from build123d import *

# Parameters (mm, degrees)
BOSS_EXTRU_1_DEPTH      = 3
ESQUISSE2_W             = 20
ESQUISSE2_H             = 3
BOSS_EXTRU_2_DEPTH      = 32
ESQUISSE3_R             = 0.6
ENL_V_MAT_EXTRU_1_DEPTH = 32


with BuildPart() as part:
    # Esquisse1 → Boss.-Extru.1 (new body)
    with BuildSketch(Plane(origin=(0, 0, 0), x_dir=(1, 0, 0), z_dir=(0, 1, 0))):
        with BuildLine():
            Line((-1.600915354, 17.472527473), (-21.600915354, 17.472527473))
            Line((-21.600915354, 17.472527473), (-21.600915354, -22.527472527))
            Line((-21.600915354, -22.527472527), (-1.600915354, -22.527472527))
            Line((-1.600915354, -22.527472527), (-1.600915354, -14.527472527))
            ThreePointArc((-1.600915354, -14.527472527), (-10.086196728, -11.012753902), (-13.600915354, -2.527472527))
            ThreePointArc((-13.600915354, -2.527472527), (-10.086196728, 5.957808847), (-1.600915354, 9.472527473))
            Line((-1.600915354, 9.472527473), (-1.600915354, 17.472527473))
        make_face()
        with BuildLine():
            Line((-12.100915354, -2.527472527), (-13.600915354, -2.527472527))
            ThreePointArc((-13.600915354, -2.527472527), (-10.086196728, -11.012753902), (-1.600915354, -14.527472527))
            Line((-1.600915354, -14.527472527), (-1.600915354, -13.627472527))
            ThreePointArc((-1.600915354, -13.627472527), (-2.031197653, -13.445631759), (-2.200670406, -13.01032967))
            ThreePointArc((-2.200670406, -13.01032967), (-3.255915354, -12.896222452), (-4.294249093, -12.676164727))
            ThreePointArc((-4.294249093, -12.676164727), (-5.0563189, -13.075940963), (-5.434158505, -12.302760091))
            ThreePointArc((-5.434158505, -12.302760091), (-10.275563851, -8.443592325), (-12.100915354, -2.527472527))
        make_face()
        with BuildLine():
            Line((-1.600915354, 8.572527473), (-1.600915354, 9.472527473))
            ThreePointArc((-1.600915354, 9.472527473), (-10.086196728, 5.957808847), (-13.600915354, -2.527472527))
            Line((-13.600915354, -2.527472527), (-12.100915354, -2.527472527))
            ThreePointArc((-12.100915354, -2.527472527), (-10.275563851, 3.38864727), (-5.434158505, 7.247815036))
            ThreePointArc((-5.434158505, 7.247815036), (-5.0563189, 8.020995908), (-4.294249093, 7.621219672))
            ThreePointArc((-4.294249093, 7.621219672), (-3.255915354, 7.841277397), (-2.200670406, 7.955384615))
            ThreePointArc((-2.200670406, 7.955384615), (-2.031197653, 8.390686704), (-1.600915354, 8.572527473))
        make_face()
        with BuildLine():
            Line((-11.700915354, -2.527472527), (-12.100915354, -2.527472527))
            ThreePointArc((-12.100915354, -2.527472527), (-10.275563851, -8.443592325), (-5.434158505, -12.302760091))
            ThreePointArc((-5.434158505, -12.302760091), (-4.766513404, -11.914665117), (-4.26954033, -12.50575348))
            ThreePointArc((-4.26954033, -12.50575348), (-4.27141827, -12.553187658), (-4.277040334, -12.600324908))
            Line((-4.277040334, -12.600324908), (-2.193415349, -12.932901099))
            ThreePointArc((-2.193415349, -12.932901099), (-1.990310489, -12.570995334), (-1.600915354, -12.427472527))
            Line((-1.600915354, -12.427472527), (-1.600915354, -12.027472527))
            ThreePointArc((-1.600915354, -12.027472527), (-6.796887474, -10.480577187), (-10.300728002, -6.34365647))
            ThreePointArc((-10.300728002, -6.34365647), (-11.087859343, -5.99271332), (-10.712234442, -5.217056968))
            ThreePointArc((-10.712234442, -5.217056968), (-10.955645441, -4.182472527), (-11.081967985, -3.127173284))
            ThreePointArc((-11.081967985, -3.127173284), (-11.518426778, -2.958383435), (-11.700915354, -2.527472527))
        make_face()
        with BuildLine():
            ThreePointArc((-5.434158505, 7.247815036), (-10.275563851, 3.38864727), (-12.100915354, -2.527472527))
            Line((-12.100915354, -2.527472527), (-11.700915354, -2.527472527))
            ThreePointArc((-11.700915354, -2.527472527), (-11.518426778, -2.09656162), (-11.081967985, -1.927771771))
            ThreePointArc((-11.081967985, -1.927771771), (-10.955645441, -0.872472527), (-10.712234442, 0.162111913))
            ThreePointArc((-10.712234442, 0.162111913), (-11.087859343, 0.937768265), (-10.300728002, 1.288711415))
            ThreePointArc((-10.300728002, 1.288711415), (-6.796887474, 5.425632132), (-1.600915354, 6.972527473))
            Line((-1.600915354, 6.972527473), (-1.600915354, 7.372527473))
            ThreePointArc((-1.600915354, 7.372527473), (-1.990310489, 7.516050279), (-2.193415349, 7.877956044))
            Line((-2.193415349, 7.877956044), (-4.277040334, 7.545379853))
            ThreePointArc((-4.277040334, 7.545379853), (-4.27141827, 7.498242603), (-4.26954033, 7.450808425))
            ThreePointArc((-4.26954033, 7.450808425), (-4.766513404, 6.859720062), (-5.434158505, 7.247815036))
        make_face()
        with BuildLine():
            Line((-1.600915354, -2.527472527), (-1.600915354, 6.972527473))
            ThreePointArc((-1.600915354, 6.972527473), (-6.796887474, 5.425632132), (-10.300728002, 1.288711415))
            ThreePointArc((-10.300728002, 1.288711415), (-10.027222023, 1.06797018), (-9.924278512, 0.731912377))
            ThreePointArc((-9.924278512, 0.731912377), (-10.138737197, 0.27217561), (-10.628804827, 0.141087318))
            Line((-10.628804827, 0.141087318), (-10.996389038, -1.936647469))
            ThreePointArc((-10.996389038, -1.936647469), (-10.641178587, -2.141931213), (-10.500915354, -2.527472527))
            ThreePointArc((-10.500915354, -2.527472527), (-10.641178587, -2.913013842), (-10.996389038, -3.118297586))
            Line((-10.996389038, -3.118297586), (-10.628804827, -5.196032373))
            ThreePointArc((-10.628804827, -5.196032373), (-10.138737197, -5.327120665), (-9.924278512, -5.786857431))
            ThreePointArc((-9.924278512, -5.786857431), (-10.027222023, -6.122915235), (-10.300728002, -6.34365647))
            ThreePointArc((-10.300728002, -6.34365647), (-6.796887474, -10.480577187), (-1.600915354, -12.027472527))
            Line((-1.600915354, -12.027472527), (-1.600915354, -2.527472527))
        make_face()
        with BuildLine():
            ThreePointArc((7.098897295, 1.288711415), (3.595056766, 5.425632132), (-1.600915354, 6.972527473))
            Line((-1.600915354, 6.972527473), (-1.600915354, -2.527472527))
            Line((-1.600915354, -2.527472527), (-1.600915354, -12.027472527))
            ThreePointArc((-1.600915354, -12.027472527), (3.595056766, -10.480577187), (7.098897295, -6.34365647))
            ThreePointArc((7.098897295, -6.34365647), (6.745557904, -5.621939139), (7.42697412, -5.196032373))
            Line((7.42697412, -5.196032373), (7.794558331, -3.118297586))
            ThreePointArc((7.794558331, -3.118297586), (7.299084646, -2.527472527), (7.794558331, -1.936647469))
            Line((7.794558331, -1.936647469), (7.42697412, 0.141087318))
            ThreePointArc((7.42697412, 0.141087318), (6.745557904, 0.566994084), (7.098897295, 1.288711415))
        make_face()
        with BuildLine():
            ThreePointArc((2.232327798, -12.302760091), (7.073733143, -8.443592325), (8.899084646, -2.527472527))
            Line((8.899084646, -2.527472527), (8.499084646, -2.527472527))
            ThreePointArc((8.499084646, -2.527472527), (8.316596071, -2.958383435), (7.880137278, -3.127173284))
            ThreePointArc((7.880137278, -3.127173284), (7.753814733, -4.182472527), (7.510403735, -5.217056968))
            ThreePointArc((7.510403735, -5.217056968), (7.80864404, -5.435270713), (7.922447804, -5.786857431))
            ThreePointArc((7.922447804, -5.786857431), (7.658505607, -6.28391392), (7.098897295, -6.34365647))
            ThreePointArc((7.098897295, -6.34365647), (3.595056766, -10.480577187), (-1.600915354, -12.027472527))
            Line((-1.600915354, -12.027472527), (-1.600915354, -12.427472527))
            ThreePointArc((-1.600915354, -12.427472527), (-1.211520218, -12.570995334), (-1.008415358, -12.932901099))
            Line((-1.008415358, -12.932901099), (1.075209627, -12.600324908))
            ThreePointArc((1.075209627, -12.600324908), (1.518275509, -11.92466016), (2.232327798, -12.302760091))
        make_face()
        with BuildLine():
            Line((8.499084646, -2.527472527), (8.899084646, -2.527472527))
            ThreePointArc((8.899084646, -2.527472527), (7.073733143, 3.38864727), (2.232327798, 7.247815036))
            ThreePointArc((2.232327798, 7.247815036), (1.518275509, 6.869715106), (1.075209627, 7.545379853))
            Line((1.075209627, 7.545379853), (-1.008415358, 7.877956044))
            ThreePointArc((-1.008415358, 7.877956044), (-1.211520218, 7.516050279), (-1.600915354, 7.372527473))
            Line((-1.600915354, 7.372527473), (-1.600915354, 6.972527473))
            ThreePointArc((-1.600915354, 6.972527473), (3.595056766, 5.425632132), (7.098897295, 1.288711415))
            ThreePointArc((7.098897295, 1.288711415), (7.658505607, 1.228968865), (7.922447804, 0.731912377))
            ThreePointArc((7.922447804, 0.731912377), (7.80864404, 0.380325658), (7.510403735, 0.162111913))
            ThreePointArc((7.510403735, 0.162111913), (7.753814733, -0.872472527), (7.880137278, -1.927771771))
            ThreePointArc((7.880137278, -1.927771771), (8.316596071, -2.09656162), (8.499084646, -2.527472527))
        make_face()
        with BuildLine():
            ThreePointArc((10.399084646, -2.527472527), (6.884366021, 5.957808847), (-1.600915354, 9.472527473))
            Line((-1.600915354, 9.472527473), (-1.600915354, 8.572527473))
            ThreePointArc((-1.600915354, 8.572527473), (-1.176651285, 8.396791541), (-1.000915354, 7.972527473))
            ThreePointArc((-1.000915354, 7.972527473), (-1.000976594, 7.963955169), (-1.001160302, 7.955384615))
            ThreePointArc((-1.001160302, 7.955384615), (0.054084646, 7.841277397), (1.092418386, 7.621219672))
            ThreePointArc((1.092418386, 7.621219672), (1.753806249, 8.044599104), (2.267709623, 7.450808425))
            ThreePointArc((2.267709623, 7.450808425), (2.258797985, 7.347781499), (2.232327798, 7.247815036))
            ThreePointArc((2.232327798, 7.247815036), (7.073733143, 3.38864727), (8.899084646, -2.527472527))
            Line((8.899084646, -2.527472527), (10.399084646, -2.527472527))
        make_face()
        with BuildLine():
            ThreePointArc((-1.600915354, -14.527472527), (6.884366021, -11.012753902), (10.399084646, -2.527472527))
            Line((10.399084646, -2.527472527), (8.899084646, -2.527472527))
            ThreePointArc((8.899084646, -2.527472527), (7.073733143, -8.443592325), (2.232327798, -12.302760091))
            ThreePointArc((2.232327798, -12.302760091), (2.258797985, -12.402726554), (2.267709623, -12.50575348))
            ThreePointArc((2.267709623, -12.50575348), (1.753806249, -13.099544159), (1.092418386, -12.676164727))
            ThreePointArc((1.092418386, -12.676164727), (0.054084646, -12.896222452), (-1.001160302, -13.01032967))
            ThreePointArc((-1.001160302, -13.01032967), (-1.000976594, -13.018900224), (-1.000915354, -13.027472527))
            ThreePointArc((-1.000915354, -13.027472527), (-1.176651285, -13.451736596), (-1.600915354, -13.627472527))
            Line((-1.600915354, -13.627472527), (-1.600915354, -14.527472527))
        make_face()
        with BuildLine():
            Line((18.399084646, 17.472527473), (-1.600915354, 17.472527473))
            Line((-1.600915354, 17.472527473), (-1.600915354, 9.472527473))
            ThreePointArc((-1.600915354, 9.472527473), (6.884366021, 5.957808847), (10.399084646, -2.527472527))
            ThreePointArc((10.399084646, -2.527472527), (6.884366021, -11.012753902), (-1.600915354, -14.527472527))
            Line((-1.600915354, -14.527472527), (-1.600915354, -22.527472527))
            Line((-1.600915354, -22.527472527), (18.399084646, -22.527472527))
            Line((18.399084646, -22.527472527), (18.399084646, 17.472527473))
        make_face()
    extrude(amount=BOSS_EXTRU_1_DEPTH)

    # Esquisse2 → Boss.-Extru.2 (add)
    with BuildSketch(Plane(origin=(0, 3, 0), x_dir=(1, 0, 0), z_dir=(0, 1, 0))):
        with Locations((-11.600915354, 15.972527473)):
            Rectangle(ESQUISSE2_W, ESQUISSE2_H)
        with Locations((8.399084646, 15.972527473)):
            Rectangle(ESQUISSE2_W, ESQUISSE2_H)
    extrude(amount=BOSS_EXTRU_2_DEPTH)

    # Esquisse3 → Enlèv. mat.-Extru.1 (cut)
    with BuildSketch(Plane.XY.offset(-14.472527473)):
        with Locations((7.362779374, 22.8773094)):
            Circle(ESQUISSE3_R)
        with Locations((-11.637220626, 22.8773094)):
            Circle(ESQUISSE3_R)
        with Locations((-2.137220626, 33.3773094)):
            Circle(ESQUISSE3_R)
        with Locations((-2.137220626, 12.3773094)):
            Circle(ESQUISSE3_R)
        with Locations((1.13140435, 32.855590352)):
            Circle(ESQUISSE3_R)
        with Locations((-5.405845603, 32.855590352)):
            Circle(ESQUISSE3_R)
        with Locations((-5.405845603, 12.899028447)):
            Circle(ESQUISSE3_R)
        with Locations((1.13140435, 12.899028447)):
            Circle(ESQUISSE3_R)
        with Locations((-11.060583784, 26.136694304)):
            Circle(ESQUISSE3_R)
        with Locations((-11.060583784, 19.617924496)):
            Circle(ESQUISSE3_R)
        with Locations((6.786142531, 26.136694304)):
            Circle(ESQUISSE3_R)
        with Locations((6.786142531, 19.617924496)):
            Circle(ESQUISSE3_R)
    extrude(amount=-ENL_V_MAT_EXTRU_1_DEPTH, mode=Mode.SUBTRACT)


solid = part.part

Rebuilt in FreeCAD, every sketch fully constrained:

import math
import FreeCAD as App
import Part
import Sketcher
from FreeCAD import Vector
Q = App.Units.Quantity

doc = App.newDocument("Part")
body = doc.addObject("PartDesign::Body", "Body")

# Sketch on XZ plane
sketch1 = body.newObject("Sketcher::SketchObject", "Sketch")
sketch1.AttachmentSupport = (doc.getObject("XZ_Plane"), [""])
sketch1.MapMode = "FlatFace"
sketch1.addGeometry(Part.LineSegment(Vector(-21.601, -17.473, 0), Vector(-21.601, 22.527, 0)), False)
sketch1.addGeometry(Part.LineSegment(Vector(-21.601, 22.527, 0), Vector(18.399, 22.527, 0)), False)
sketch1.addGeometry(Part.LineSegment(Vector(18.399, 22.527, 0), Vector(18.399, -17.473, 0)), False)
sketch1.addGeometry(Part.LineSegment(Vector(18.399, -17.473, 0), Vector(-21.601, -17.473, 0)), False)
sketch1.addGeometry(Part.ArcOfCircle(Part.Circle(Vector(-1.601, 13.027, 0), Vector(0, 0, 1), 0.6), math.radians(90), math.radians(182)), False)
sketch1.addGeometry(Part.ArcOfCircle(Part.Circle(Vector(-1.601, 2.527, 0), Vector(0, 0, 1), 10.5), math.radians(93.27), math.radians(104.86)), False)
sketch1.addGeometry(Part.ArcOfCircle(Part.Circle(Vector(-4.87, 12.506, 0), Vector(0, 0, 1), 0.6), math.radians(17), math.radians(200)), False)
sketch1.addGeometry(Part.ArcOfCircle(Part.Circle(Vector(-4.87, 12.506, 0), Vector(0, 0, 1), 0.6), math.radians(-160), math.radians(0)), False)
sketch1.addGeometry(Part.ArcOfCircle(Part.Circle(Vector(-4.87, 12.506, 0), Vector(0, 0, 1), 0.6), math.radians(0), math.radians(9.07)), False)
sketch1.addGeometry(Part.LineSegment(Vector(-4.277, 12.6, 0), Vector(-2.193, 12.933, 0)), False)
sketch1.addGeometry(Part.ArcOfCircle(Part.Circle(Vector(-1.601, 13.027, 0), Vector(0, 0, 1), 0.6), math.radians(-171), math.radians(-90)), False)
sketch1.addGeometry(Part.ArcOfCircle(Part.Circle(Vector(-1.601, 13.027, 0), Vector(0, 0, 1), 0.6), math.radians(-90), math.radians(-9)), False)
sketch1.addGeometry(Part.LineSegment(Vector(-1.008, 12.933, 0), Vector(1.075, 12.6, 0)), False)
sketch1.addGeometry(Part.ArcOfCircle(Part.Circle(Vector(1.668, 12.506, 0), Vector(0, 0, 1), 0.6), math.radians(171), math.radians(340)), False)
sketch1.addGeometry(Part.ArcOfCircle(Part.Circle(Vector(1.668, 12.506, 0), Vector(0, 0, 1), 0.6), math.radians(-19.77), math.radians(0)), False)
sketch1.addGeometry(Part.ArcOfCircle(Part.Circle(Vector(1.668, 12.506, 0), Vector(0, 0, 1), 0.6), math.radians(0), math.radians(163)), False)
sketch1.addGeometry(Part.ArcOfCircle(Part.Circle(Vector(-1.601, 2.527, 0), Vector(0, 0, 1), 10.5), math.radians(75.14), math.radians(86.73)), False)
sketch1.addGeometry(Part.ArcOfCircle(Part.Circle(Vector(-1.601, 13.027, 0), Vector(0, 0, 1), 0.6), math.radians(-1.64), math.radians(0)), False)
sketch1.addGeometry(Part.ArcOfCircle(Part.Circle(Vector(-1.601, 13.027, 0), Vector(0, 0, 1), 0.6), math.radians(0), math.radians(90)), False)
sketch1.addGeometry(Part.ArcOfCircle(Part.Circle(Vector(1.668, -7.451, 0), Vector(0, 0, 1), 0.6), math.radians(20), math.radians(189)), False)
sketch1.addGeometry(Part.LineSegment(Vector(1.075, -7.545, 0), Vector(-1.008, -7.878, 0)), False)
sketch1.addGeometry(Part.ArcOfCircle(Part.Circle(Vector(-1.601, -7.973, 0), Vector(0, 0, 1), 0.6), math.radians(9), math.radians(90)), False)
sketch1.addGeometry(Part.ArcOfCircle(Part.Circle(Vector(-1.601, -7.973, 0), Vector(0, 0, 1), 0.6), math.radians(90), math.radians(171)), False)
sketch1.addGeometry(Part.LineSegment(Vector(-2.193, -7.878, 0), Vector(-4.277, -7.545, 0)), False)
sketch1.addGeometry(Part.ArcOfCircle(Part.Circle(Vector(-4.87, -7.451, 0), Vector(0, 0, 1), 0.6), math.radians(-9.07), math.radians(0)), False)
sketch1.addGeometry(Part.ArcOfCircle(Part.Circle(Vector(-4.87, -7.451, 0), Vector(0, 0, 1), 0.6), math.radians(0), math.radians(160)), False)
sketch1.addGeometry(Part.ArcOfCircle(Part.Circle(Vector(-4.87, -7.451, 0), Vector(0, 0, 1), 0.6), math.radians(160), math.radians(343)), False)
sketch1.addGeometry(Part.ArcOfCircle(Part.Circle(Vector(-1.601, 2.527, 0), Vector(0, 0, 1), 10.5), math.radians(-104.86), math.radians(-93.27)), False)
sketch1.addGeometry(Part.ArcOfCircle(Part.Circle(Vector(-1.601, -7.973, 0), Vector(0, 0, 1), 0.6), math.radians(178), math.radians(270)), False)
sketch1.addGeometry(Part.ArcOfCircle(Part.Circle(Vector(-1.601, -7.973, 0), Vector(0, 0, 1), 0.6), math.radians(-90), math.radians(0)), False)
sketch1.addGeometry(Part.ArcOfCircle(Part.Circle(Vector(-1.601, -7.973, 0), Vector(0, 0, 1), 0.6), math.radians(0), math.radians(1.64)), False)
sketch1.addGeometry(Part.ArcOfCircle(Part.Circle(Vector(-1.601, 2.527, 0), Vector(0, 0, 1), 10.5), math.radians(-86.73), math.radians(-75.14)), False)
sketch1.addGeometry(Part.ArcOfCircle(Part.Circle(Vector(1.668, -7.451, 0), Vector(0, 0, 1), 0.6), math.radians(-163), math.radians(0)), False)
sketch1.addGeometry(Part.ArcOfCircle(Part.Circle(Vector(1.668, -7.451, 0), Vector(0, 0, 1), 0.6), math.radians(0), math.radians(19.77)), False)
sketch1.addGeometry(Part.ArcOfCircle(Part.Circle(Vector(7.899, 2.527, 0), Vector(0, 0, 1), 0.6), math.radians(0), math.radians(92)), False)
sketch1.addGeometry(Part.ArcOfCircle(Part.Circle(Vector(-1.601, 2.527, 0), Vector(0, 0, 1), 9.5), math.radians(3.62), math.radians(16.45)), False)
sketch1.addGeometry(Part.ArcOfCircle(Part.Circle(Vector(7.322, 5.787, 0), Vector(0, 0, 1), 0.6), math.radians(-72), math.radians(0)), False)
sketch1.addGeometry(Part.ArcOfCircle(Part.Circle(Vector(7.322, 5.787, 0), Vector(0, 0, 1), 0.6), math.radians(0), math.radians(112)), False)
sketch1.addGeometry(Part.ArcOfCircle(Part.Circle(Vector(7.322, 5.787, 0), Vector(0, 0, 1), 0.6), math.radians(112), math.radians(280)), False)
sketch1.addGeometry(Part.LineSegment(Vector(7.427, 5.196, 0), Vector(7.795, 3.118, 0)), False)
sketch1.addGeometry(Part.ArcOfCircle(Part.Circle(Vector(7.899, 2.527, 0), Vector(0, 0, 1), 0.6), math.radians(100), math.radians(260)), False)
sketch1.addGeometry(Part.LineSegment(Vector(7.795, 1.937, 0), Vector(7.427, -0.141, 0)), False)
sketch1.addGeometry(Part.ArcOfCircle(Part.Circle(Vector(7.322, -0.732, 0), Vector(0, 0, 1), 0.6), math.radians(80), math.radians(248)), False)
sketch1.addGeometry(Part.ArcOfCircle(Part.Circle(Vector(7.322, -0.732, 0), Vector(0, 0, 1), 0.6), math.radians(-112), math.radians(0)), False)
sketch1.addGeometry(Part.ArcOfCircle(Part.Circle(Vector(7.322, -0.732, 0), Vector(0, 0, 1), 0.6), math.radians(0), math.radians(72)), False)
sketch1.addGeometry(Part.ArcOfCircle(Part.Circle(Vector(-1.601, 2.527, 0), Vector(0, 0, 1), 9.5), math.radians(-16.45), math.radians(-3.62)), False)
sketch1.addGeometry(Part.ArcOfCircle(Part.Circle(Vector(7.899, 2.527, 0), Vector(0, 0, 1), 0.6), math.radians(-92), math.radians(0)), False)
sketch1.addGeometry(Part.ArcOfCircle(Part.Circle(Vector(-10.524, 5.787, 0), Vector(0, 0, 1), 0.6), math.radians(68), math.radians(252)), False)
sketch1.addGeometry(Part.ArcOfCircle(Part.Circle(Vector(-1.601, 2.527, 0), Vector(0, 0, 1), 9.5), math.radians(163.55), math.radians(176.38)), False)
sketch1.addGeometry(Part.ArcOfCircle(Part.Circle(Vector(-11.101, 2.527, 0), Vector(0, 0, 1), 0.6), math.radians(88), math.radians(180)), False)
sketch1.addGeometry(Part.ArcOfCircle(Part.Circle(Vector(-11.101, 2.527, 0), Vector(0, 0, 1), 0.6), math.radians(-180), math.radians(-88)), False)
sketch1.addGeometry(Part.ArcOfCircle(Part.Circle(Vector(-1.601, 2.527, 0), Vector(0, 0, 1), 9.5), math.radians(-176.38), math.radians(-163.55)), False)
sketch1.addGeometry(Part.ArcOfCircle(Part.Circle(Vector(-10.524, -0.732, 0), Vector(0, 0, 1), 0.6), math.radians(108), math.radians(292)), False)
sketch1.addGeometry(Part.ArcOfCircle(Part.Circle(Vector(-10.524, -0.732, 0), Vector(0, 0, 1), 0.6), math.radians(-68), math.radians(0)), False)
sketch1.addGeometry(Part.ArcOfCircle(Part.Circle(Vector(-10.524, -0.732, 0), Vector(0, 0, 1), 0.6), math.radians(0), math.radians(100)), False)
sketch1.addGeometry(Part.LineSegment(Vector(-10.629, -0.141, 0), Vector(-10.996, 1.937, 0)), False)
sketch1.addGeometry(Part.ArcOfCircle(Part.Circle(Vector(-11.101, 2.527, 0), Vector(0, 0, 1), 0.6), math.radians(-80), math.radians(0)), False)
sketch1.addGeometry(Part.ArcOfCircle(Part.Circle(Vector(-11.101, 2.527, 0), Vector(0, 0, 1), 0.6), math.radians(0), math.radians(80)), False)
sketch1.addGeometry(Part.LineSegment(Vector(-10.996, 3.118, 0), Vector(-10.629, 5.196, 0)), False)
sketch1.addGeometry(Part.ArcOfCircle(Part.Circle(Vector(-10.524, 5.787, 0), Vector(0, 0, 1), 0.6), math.radians(-100), math.radians(0)), False)
sketch1.addGeometry(Part.ArcOfCircle(Part.Circle(Vector(-10.524, 5.787, 0), Vector(0, 0, 1), 0.6), math.radians(0), math.radians(68)), False)
sketch1.addConstraint(Sketcher.Constraint("Coincident", 0, 2, 1, 1))
sketch1.addConstraint(Sketcher.Constraint("Coincident", 1, 2, 2, 1))
sketch1.addConstraint(Sketcher.Constraint("Coincident", 2, 2, 3, 1))
sketch1.addConstraint(Sketcher.Constraint("Coincident", 3, 2, 0, 1))
sketch1.addConstraint(Sketcher.Constraint("Coincident", 4, 2, 5, 1))
sketch1.addConstraint(Sketcher.Constraint("Coincident", 5, 2, 6, 1))
sketch1.addConstraint(Sketcher.Constraint("Tangent", 6, 2, 7, 1))
sketch1.addConstraint(Sketcher.Constraint("Tangent", 7, 2, 8, 1))
sketch1.addConstraint(Sketcher.Constraint("Coincident", 8, 2, 9, 1))
sketch1.addConstraint(Sketcher.Constraint("Coincident", 9, 2, 10, 1))
sketch1.addConstraint(Sketcher.Constraint("Tangent", 10, 2, 11, 1))
sketch1.addConstraint(Sketcher.Constraint("Coincident", 11, 2, 12, 1))
sketch1.addConstraint(Sketcher.Constraint("Coincident", 12, 2, 13, 1))
sketch1.addConstraint(Sketcher.Constraint("Tangent", 13, 2, 14, 1))
sketch1.addConstraint(Sketcher.Constraint("Tangent", 14, 2, 15, 1))
sketch1.addConstraint(Sketcher.Constraint("Coincident", 15, 2, 16, 1))
sketch1.addConstraint(Sketcher.Constraint("Coincident", 16, 2, 17, 1))
sketch1.addConstraint(Sketcher.Constraint("Tangent", 17, 2, 18, 1))
sketch1.addConstraint(Sketcher.Constraint("Tangent", 18, 2, 4, 1))
sketch1.addConstraint(Sketcher.Constraint("Coincident", 19, 2, 20, 1))
sketch1.addConstraint(Sketcher.Constraint("Coincident", 20, 2, 21, 1))
sketch1.addConstraint(Sketcher.Constraint("Tangent", 21, 2, 22, 1))
sketch1.addConstraint(Sketcher.Constraint("Coincident", 22, 2, 23, 1))
sketch1.addConstraint(Sketcher.Constraint("Coincident", 23, 2, 24, 1))
sketch1.addConstraint(Sketcher.Constraint("Tangent", 24, 2, 25, 1))
sketch1.addConstraint(Sketcher.Constraint("Tangent", 25, 2, 26, 1))
sketch1.addConstraint(Sketcher.Constraint("Coincident", 26, 2, 27, 1))
sketch1.addConstraint(Sketcher.Constraint("Coincident", 27, 2, 28, 1))
sketch1.addConstraint(Sketcher.Constraint("Tangent", 28, 2, 29, 1))
sketch1.addConstraint(Sketcher.Constraint("Tangent", 29, 2, 30, 1))
sketch1.addConstraint(Sketcher.Constraint("Coincident", 30, 2, 31, 1))
sketch1.addConstraint(Sketcher.Constraint("Coincident", 31, 2, 32, 1))
sketch1.addConstraint(Sketcher.Constraint("Tangent", 32, 2, 33, 1))
sketch1.addConstraint(Sketcher.Constraint("Tangent", 33, 2, 19, 1))
sketch1.addConstraint(Sketcher.Constraint("Coincident", 34, 2, 35, 1))
sketch1.addConstraint(Sketcher.Constraint("Coincident", 35, 2, 36, 1))
sketch1.addConstraint(Sketcher.Constraint("Tangent", 36, 2, 37, 1))
sketch1.addConstraint(Sketcher.Constraint("Tangent", 37, 2, 38, 1))
sketch1.addConstraint(Sketcher.Constraint("Coincident", 38, 2, 39, 1))
sketch1.addConstraint(Sketcher.Constraint("Coincident", 39, 2, 40, 1))
sketch1.addConstraint(Sketcher.Constraint("Coincident", 40, 2, 41, 1))
sketch1.addConstraint(Sketcher.Constraint("Coincident", 41, 2, 42, 1))
sketch1.addConstraint(Sketcher.Constraint("Tangent", 42, 2, 43, 1))
sketch1.addConstraint(Sketcher.Constraint("Tangent", 43, 2, 44, 1))
sketch1.addConstraint(Sketcher.Constraint("Coincident", 44, 2, 45, 1))
sketch1.addConstraint(Sketcher.Constraint("Coincident", 45, 2, 46, 1))
sketch1.addConstraint(Sketcher.Constraint("Tangent", 46, 2, 34, 1))
sketch1.addConstraint(Sketcher.Constraint("Coincident", 47, 2, 48, 1))
sketch1.addConstraint(Sketcher.Constraint("Coincident", 48, 2, 49, 1))
sketch1.addConstraint(Sketcher.Constraint("Tangent", 49, 2, 50, 1))
sketch1.addConstraint(Sketcher.Constraint("Coincident", 50, 2, 51, 1))
sketch1.addConstraint(Sketcher.Constraint("Coincident", 51, 2, 52, 1))
sketch1.addConstraint(Sketcher.Constraint("Tangent", 52, 2, 53, 1))
sketch1.addConstraint(Sketcher.Constraint("Tangent", 53, 2, 54, 1))
sketch1.addConstraint(Sketcher.Constraint("Coincident", 54, 2, 55, 1))
sketch1.addConstraint(Sketcher.Constraint("Coincident", 55, 2, 56, 1))
sketch1.addConstraint(Sketcher.Constraint("Tangent", 56, 2, 57, 1))
sketch1.addConstraint(Sketcher.Constraint("Coincident", 57, 2, 58, 1))
sketch1.addConstraint(Sketcher.Constraint("Coincident", 58, 2, 59, 1))
sketch1.addConstraint(Sketcher.Constraint("Tangent", 59, 2, 60, 1))
sketch1.addConstraint(Sketcher.Constraint("Tangent", 60, 2, 47, 1))
sketch1.addConstraint(Sketcher.Constraint("Vertical", 0))
sketch1.addConstraint(Sketcher.Constraint("Horizontal", 1))
sketch1.addConstraint(Sketcher.Constraint("Vertical", 2))
sketch1.addConstraint(Sketcher.Constraint("Horizontal", 3))
sketch1.addConstraint(Sketcher.Constraint("Coincident", 8, 3, 6, 3))
sketch1.addConstraint(Sketcher.Constraint("Coincident", 10, 3, 4, 3))
sketch1.addConstraint(Sketcher.Constraint("Coincident", 15, 3, 13, 3))
sketch1.addConstraint(Sketcher.Constraint("Coincident", 16, 3, 5, 3))
sketch1.addConstraint(Sketcher.Constraint("Coincident", 17, 3, 4, 3))
sketch1.addConstraint(Sketcher.Constraint("Coincident", 26, 3, 24, 3))
sketch1.addConstraint(Sketcher.Constraint("Coincident", 27, 3, 5, 3))
sketch1.addConstraint(Sketcher.Constraint("Coincident", 28, 3, 21, 3))
sketch1.addConstraint(Sketcher.Constraint("Coincident", 30, 3, 21, 3))
sketch1.addConstraint(Sketcher.Constraint("Coincident", 31, 3, 5, 3))
sketch1.addConstraint(Sketcher.Constraint("Coincident", 32, 3, 19, 3))
sketch1.addConstraint(Sketcher.Constraint("Coincident", 35, 3, 5, 3))
sketch1.addConstraint(Sketcher.Constraint("Coincident", 38, 3, 36, 3))
sketch1.addConstraint(Sketcher.Constraint("Coincident", 40, 3, 34, 3))
sketch1.addConstraint(Sketcher.Constraint("Coincident", 44, 3, 42, 3))
sketch1.addConstraint(Sketcher.Constraint("Coincident", 45, 3, 5, 3))
sketch1.addConstraint(Sketcher.Constraint("Coincident", 48, 3, 5, 3))
sketch1.addConstraint(Sketcher.Constraint("Coincident", 51, 3, 5, 3))
sketch1.addConstraint(Sketcher.Constraint("Coincident", 54, 3, 52, 3))
sketch1.addConstraint(Sketcher.Constraint("Coincident", 56, 3, 49, 3))
sketch1.addConstraint(Sketcher.Constraint("Coincident", 59, 3, 47, 3))
sketch1.addConstraint(Sketcher.Constraint("Equal", 4, 6))
sketch1.addConstraint(Sketcher.Constraint("Equal", 8, 10))
sketch1.addConstraint(Sketcher.Constraint("Equal", 10, 11))
sketch1.addConstraint(Sketcher.Constraint("Equal", 11, 13))
sketch1.addConstraint(Sketcher.Constraint("Equal", 5, 16))
sketch1.addConstraint(Sketcher.Constraint("Equal", 18, 19))
sketch1.addConstraint(Sketcher.Constraint("Equal", 19, 21))
sketch1.addConstraint(Sketcher.Constraint("Equal", 21, 22))
sketch1.addConstraint(Sketcher.Constraint("Equal", 22, 24))
sketch1.addConstraint(Sketcher.Constraint("Equal", 16, 27))
sketch1.addConstraint(Sketcher.Constraint("Equal", 26, 28))
sketch1.addConstraint(Sketcher.Constraint("Equal", 27, 31))
sketch1.addConstraint(Sketcher.Constraint("Equal", 33, 34))
sketch1.addConstraint(Sketcher.Constraint("Equal", 34, 36))
sketch1.addConstraint(Sketcher.Constraint("Equal", 38, 40))
sketch1.addConstraint(Sketcher.Constraint("Equal", 40, 42))
sketch1.addConstraint(Sketcher.Constraint("Equal", 35, 45))
sketch1.addConstraint(Sketcher.Constraint("Equal", 44, 46))
sketch1.addConstraint(Sketcher.Constraint("Equal", 46, 47))
sketch1.addConstraint(Sketcher.Constraint("Equal", 45, 48))
sketch1.addConstraint(Sketcher.Constraint("Equal", 47, 49))
sketch1.addConstraint(Sketcher.Constraint("Equal", 49, 50))
sketch1.addConstraint(Sketcher.Constraint("Equal", 48, 51))
sketch1.addConstraint(Sketcher.Constraint("Equal", 50, 52))
sketch1.addConstraint(Sketcher.Constraint("Equal", 54, 56))
sketch1.addConstraint(Sketcher.Constraint("Equal", 56, 57))
sketch1.addConstraint(Sketcher.Constraint("Parallel", 9, 20))
sketch1.addConstraint(Sketcher.Constraint("Parallel", 12, 23))
sketch1.addConstraint(Sketcher.Constraint("Parallel", 39, 55))
sketch1.addConstraint(Sketcher.Constraint("Parallel", 41, 58))
sketch1.addConstraint(Sketcher.Constraint("Horizontal", 8, 3, 13, 3))
sketch1.addConstraint(Sketcher.Constraint("Horizontal", 19, 3, 24, 3))
sketch1.addConstraint(Sketcher.Constraint("Horizontal", 31, 3, 34, 3))
sketch1.addConstraint(Sketcher.Constraint("Horizontal", 38, 3, 47, 3))
sketch1.addConstraint(Sketcher.Constraint("Horizontal", 48, 3, 49, 3))
sketch1.addConstraint(Sketcher.Constraint("Horizontal", 44, 3, 52, 3))
sketch1.addConstraint(Sketcher.Constraint("Horizontal", 15, 3, 7, 2))
sketch1.addConstraint(Sketcher.Constraint("Horizontal", 9, 2, 11, 2))
sketch1.addConstraint(Sketcher.Constraint("Horizontal", 8, 2, 12, 2))
sketch1.addConstraint(Sketcher.Constraint("Horizontal", 6, 2, 13, 2))
sketch1.addConstraint(Sketcher.Constraint("Horizontal", 7, 2, 14, 2))
sketch1.addConstraint(Sketcher.Constraint("Horizontal", 5, 2, 15, 2))
sketch1.addConstraint(Sketcher.Constraint("Horizontal", 4, 2, 16, 2))
sketch1.addConstraint(Sketcher.Constraint("Horizontal", 18, 3, 17, 2))
sketch1.addConstraint(Sketcher.Constraint("Horizontal", 20, 2, 22, 2))
sketch1.addConstraint(Sketcher.Constraint("Horizontal", 19, 2, 23, 2))
sketch1.addConstraint(Sketcher.Constraint("Horizontal", 33, 3, 24, 2))
sketch1.addConstraint(Sketcher.Constraint("Horizontal", 30, 3, 29, 2))
sketch1.addConstraint(Sketcher.Constraint("Horizontal", 27, 2, 30, 2))
sketch1.addConstraint(Sketcher.Constraint("Horizontal", 24, 2, 32, 2))
sketch1.addConstraint(Sketcher.Constraint("Horizontal", 25, 2, 33, 2))
sketch1.addConstraint(Sketcher.Constraint("Horizontal", 60, 3, 36, 2))
sketch1.addConstraint(Sketcher.Constraint("Horizontal", 54, 3, 43, 2))
sketch1.addConstraint(Sketcher.Constraint("Horizontal", 57, 3, 46, 2))
sketch1.addConstraint(Sketcher.Constraint("Horizontal", 35, 2, 47, 2))
sketch1.addConstraint(Sketcher.Constraint("Horizontal", 46, 2, 49, 2))
sketch1.addConstraint(Sketcher.Constraint("Horizontal", 44, 2, 51, 2))
sketch1.addConstraint(Sketcher.Constraint("Horizontal", 42, 2, 52, 2))
sketch1.addConstraint(Sketcher.Constraint("Horizontal", 43, 2, 53, 2))
sketch1.addConstraint(Sketcher.Constraint("Horizontal", 41, 2, 54, 2))
sketch1.addConstraint(Sketcher.Constraint("Horizontal", 40, 2, 55, 2))
sketch1.addConstraint(Sketcher.Constraint("Horizontal", 49, 2, 56, 2))
sketch1.addConstraint(Sketcher.Constraint("Horizontal", 39, 2, 57, 2))
sketch1.addConstraint(Sketcher.Constraint("Horizontal", 38, 2, 58, 2))
sketch1.addConstraint(Sketcher.Constraint("Horizontal", 36, 2, 59, 2))
sketch1.addConstraint(Sketcher.Constraint("Horizontal", 37, 2, 60, 2))
sketch1.addConstraint(Sketcher.Constraint("Vertical", 15, 3, 19, 3))
sketch1.addConstraint(Sketcher.Constraint("Vertical", 38, 3, 42, 3))
sketch1.addConstraint(Sketcher.Constraint("Vertical", 51, 3, 10, 2))
sketch1.addConstraint(Sketcher.Constraint("Vertical", 10, 2, 18, 2))
sketch1.addConstraint(Sketcher.Constraint("Vertical", 12, 2, 19, 2))
sketch1.addConstraint(Sketcher.Constraint("Vertical", 11, 2, 20, 2))
sketch1.addConstraint(Sketcher.Constraint("Vertical", 18, 2, 21, 2))
sketch1.addConstraint(Sketcher.Constraint("Vertical", 6, 2, 25, 2))
sketch1.addConstraint(Sketcher.Constraint("Vertical", 5, 2, 26, 2))
sketch1.addConstraint(Sketcher.Constraint("Vertical", 21, 2, 28, 2))
sketch1.addConstraint(Sketcher.Constraint("Vertical", 39, 2, 40, 2))
sketch1.addConstraint(Sketcher.Constraint("Vertical", 38, 2, 41, 2))
sketch1.addConstraint(Sketcher.Constraint("Vertical", 37, 2, 42, 2))
sketch1.addConstraint(Sketcher.Constraint("Equal", 3, 0))
sketch1.addConstraint(Sketcher.Constraint("Equal", 23, 39))
sketch1.addConstraint(Sketcher.Constraint("Radius", 4, Q("0.6 mm")))
sketch1.addConstraint(Sketcher.Constraint("Radius", 5, Q("10.5 mm")))
sketch1.addConstraint(Sketcher.Constraint("Radius", 35, Q("9.5 mm")))
sketch1.addConstraint(Sketcher.Constraint("DistanceX", 1, 1, 1, 2, Q("40 mm")))
sketch1.addConstraint(Sketcher.Constraint("Distance", 9, Q("2.11 mm")))
sketch1.addConstraint(Sketcher.Constraint("DistanceY", -1, 1, 9, 2, Q("12.932901 mm")))
sketch1.addConstraint(Sketcher.Constraint("DistanceX", 6, 3, -1, 1, Q("4.86954 mm")))
sketch1.addConstraint(Sketcher.Constraint("DistanceX", -1, 1, 13, 3, Q("1.66771 mm")))
sketch1.addConstraint(Sketcher.Constraint("DistanceY", 19, 3, -1, 1, Q("7.450808 mm")))
sketch1.addConstraint(Sketcher.Constraint("DistanceX", 47, 3, -1, 1, Q("10.524279 mm")))
sketch1.addConstraint(Sketcher.Constraint("DistanceY", -1, 1, 4, 2, Q("13.01033 mm")))
sketch1.addConstraint(Sketcher.Constraint("DistanceX", 6, 2, -1, 1, Q("5.434159 mm")))
sketch1.addConstraint(Sketcher.Constraint("DistanceX", 8, 2, -1, 1, Q("4.27704 mm")))
sketch1.addConstraint(Sketcher.Constraint("DistanceX", -1, 1, 39, 2, Q("7.794558 mm")))
sketch1.addConstraint(Sketcher.Constraint("DistanceY", 42, 2, -1, 1, Q("1.288711 mm")))
sketch1.addConstraint(Sketcher.Constraint("DistanceY", 44, 2, -1, 1, Q("0.162112 mm")))
sketch1.addConstraint(Sketcher.Constraint("DistanceX", 0, 2, -1, 1, Q("21.600915 mm")))
sketch1.addConstraint(Sketcher.Constraint("DistanceY", -1, 1, 0, 2, Q("22.527473 mm")))
sketch1.addConstraint(Sketcher.Constraint("DistanceX", -1, 1, 38, 2, Q("7.426974 mm")))
pad1 = body.newObject("PartDesign::Pad", "Pad")
pad1.Profile = sketch1
pad1.Length = 3
pad1.Reversed = True

# Sketch on XZ plane
sketch2 = body.newObject("Sketcher::SketchObject", "Sketch001")
sketch2.AttachmentSupport = (doc.getObject("XZ_Plane"), [""])
sketch2.MapMode = "FlatFace"
sketch2.AttachmentOffset = App.Placement(Vector(0, 0, -3), App.Rotation())
sketch2.addGeometry(Part.LineSegment(Vector(-21.6, -17.5, 0), Vector(-21.6, -14.5, 0)), False)
sketch2.addGeometry(Part.LineSegment(Vector(-21.6, -14.5, 0), Vector(18.4, -14.5, 0)), False)
sketch2.addGeometry(Part.LineSegment(Vector(18.4, -14.5, 0), Vector(18.4, -17.5, 0)), False)
sketch2.addGeometry(Part.LineSegment(Vector(18.4, -17.5, 0), Vector(-21.6, -17.5, 0)), False)
sketch2.addConstraint(Sketcher.Constraint("Coincident", 0, 2, 1, 1))
sketch2.addConstraint(Sketcher.Constraint("Coincident", 1, 2, 2, 1))
sketch2.addConstraint(Sketcher.Constraint("Coincident", 2, 2, 3, 1))
sketch2.addConstraint(Sketcher.Constraint("Coincident", 3, 2, 0, 1))
sketch2.addConstraint(Sketcher.Constraint("Vertical", 0))
sketch2.addConstraint(Sketcher.Constraint("Horizontal", 1))
sketch2.addConstraint(Sketcher.Constraint("Vertical", 2))
sketch2.addConstraint(Sketcher.Constraint("Horizontal", 3))
sketch2.addConstraint(Sketcher.Constraint("DistanceX", 1, 1, 1, 2, Q("40 mm")))
sketch2.addConstraint(Sketcher.Constraint("DistanceY", 0, 1, 0, 2, Q("3 mm")))
sketch2.addConstraint(Sketcher.Constraint("DistanceX", 0, 2, -1, 1, Q("21.600915 mm")))
sketch2.addConstraint(Sketcher.Constraint("DistanceY", 0, 2, -1, 1, Q("14.472527 mm")))
pad2 = body.newObject("PartDesign::Pad", "Pad001")
pad2.Profile = sketch2
pad2.Length = 32
pad2.Reversed = True

# Sketch on XY plane
sketch3 = body.newObject("Sketcher::SketchObject", "Sketch002")
sketch3.AttachmentSupport = (doc.getObject("XY_Plane"), [""])
sketch3.MapMode = "FlatFace"
sketch3.AttachmentOffset = App.Placement(Vector(0, 0, -14.472527), App.Rotation())
sketch3.addGeometry(Part.Circle(Vector(7.4, 22.9, 0), Vector(0, 0, 1), 0.6), False)
sketch3.addGeometry(Part.Circle(Vector(-11.6, 22.9, 0), Vector(0, 0, 1), 0.6), False)
sketch3.addGeometry(Part.Circle(Vector(-2.1, 33.4, 0), Vector(0, 0, 1), 0.6), False)
sketch3.addGeometry(Part.Circle(Vector(-2.1, 12.4, 0), Vector(0, 0, 1), 0.6), False)
sketch3.addGeometry(Part.Circle(Vector(1.1, 32.9, 0), Vector(0, 0, 1), 0.6), False)
sketch3.addGeometry(Part.Circle(Vector(-5.4, 32.9, 0), Vector(0, 0, 1), 0.6), False)
sketch3.addGeometry(Part.Circle(Vector(-5.4, 12.9, 0), Vector(0, 0, 1), 0.6), False)
sketch3.addGeometry(Part.Circle(Vector(1.1, 12.9, 0), Vector(0, 0, 1), 0.6), False)
sketch3.addGeometry(Part.Circle(Vector(-11.1, 26.1, 0), Vector(0, 0, 1), 0.6), False)
sketch3.addGeometry(Part.Circle(Vector(-11.1, 19.6, 0), Vector(0, 0, 1), 0.6), False)
sketch3.addGeometry(Part.Circle(Vector(6.8, 26.1, 0), Vector(0, 0, 1), 0.6), False)
sketch3.addGeometry(Part.Circle(Vector(6.8, 19.6, 0), Vector(0, 0, 1), 0.6), False)
sketch3.addConstraint(Sketcher.Constraint("Equal", 0, 1))
sketch3.addConstraint(Sketcher.Constraint("Equal", 1, 2))
sketch3.addConstraint(Sketcher.Constraint("Equal", 2, 3))
sketch3.addConstraint(Sketcher.Constraint("Equal", 3, 4))
sketch3.addConstraint(Sketcher.Constraint("Equal", 4, 5))
sketch3.addConstraint(Sketcher.Constraint("Equal", 5, 6))
sketch3.addConstraint(Sketcher.Constraint("Equal", 6, 7))
sketch3.addConstraint(Sketcher.Constraint("Equal", 7, 8))
sketch3.addConstraint(Sketcher.Constraint("Equal", 8, 9))
sketch3.addConstraint(Sketcher.Constraint("Equal", 9, 10))
sketch3.addConstraint(Sketcher.Constraint("Equal", 10, 11))
sketch3.addConstraint(Sketcher.Constraint("Horizontal", 0, 3, 1, 3))
sketch3.addConstraint(Sketcher.Constraint("Horizontal", 4, 3, 5, 3))
sketch3.addConstraint(Sketcher.Constraint("Horizontal", 6, 3, 7, 3))
sketch3.addConstraint(Sketcher.Constraint("Horizontal", 8, 3, 10, 3))
sketch3.addConstraint(Sketcher.Constraint("Horizontal", 9, 3, 11, 3))
sketch3.addConstraint(Sketcher.Constraint("Vertical", 2, 3, 3, 3))
sketch3.addConstraint(Sketcher.Constraint("Vertical", 5, 3, 6, 3))
sketch3.addConstraint(Sketcher.Constraint("Vertical", 4, 3, 7, 3))
sketch3.addConstraint(Sketcher.Constraint("Vertical", 8, 3, 9, 3))
sketch3.addConstraint(Sketcher.Constraint("Vertical", 10, 3, 11, 3))
sketch3.addConstraint(Sketcher.Constraint("Diameter", 0, Q("1.2 mm")))
sketch3.addConstraint(Sketcher.Constraint("DistanceX", 1, 3, 0, 3, Q("19 mm")))
sketch3.addConstraint(Sketcher.Constraint("DistanceY", 3, 3, 2, 3, Q("21 mm")))
sketch3.addConstraint(Sketcher.Constraint("DistanceX", 2, 3, 0, 3, Q("9.5 mm")))
sketch3.addConstraint(Sketcher.Constraint("DistanceY", 0, 3, 2, 3, Q("10.5 mm")))
sketch3.addConstraint(Sketcher.Constraint("DistanceX", -1, 1, 0, 3, Q("7.362779 mm")))
sketch3.addConstraint(Sketcher.Constraint("DistanceY", -1, 1, 0, 3, Q("22.877309 mm")))
sketch3.addConstraint(Sketcher.Constraint("DistanceY", -1, 1, 4, 3, Q("32.85559 mm")))
sketch3.addConstraint(Sketcher.Constraint("DistanceY", -1, 1, 6, 3, Q("12.899028 mm")))
sketch3.addConstraint(Sketcher.Constraint("DistanceX", 5, 3, 4, 3, Q("6.53725 mm")))
sketch3.addConstraint(Sketcher.Constraint("DistanceX", 8, 3, 5, 3, Q("5.654738 mm")))
sketch3.addConstraint(Sketcher.Constraint("DistanceY", 9, 3, 8, 3, Q("6.51877 mm")))
sketch3.addConstraint(Sketcher.Constraint("DistanceX", 4, 3, 10, 3, Q("5.654738 mm")))
sketch3.addConstraint(Sketcher.Constraint("DistanceX", -1, 1, 4, 3, Q("1.131404 mm")))
sketch3.addConstraint(Sketcher.Constraint("DistanceY", -1, 1, 8, 3, Q("26.136694 mm")))
pocket1 = body.newObject("PartDesign::Pocket", "Pocket")
pocket1.Profile = sketch3
pocket1.Length = 32

doc.recompute()
